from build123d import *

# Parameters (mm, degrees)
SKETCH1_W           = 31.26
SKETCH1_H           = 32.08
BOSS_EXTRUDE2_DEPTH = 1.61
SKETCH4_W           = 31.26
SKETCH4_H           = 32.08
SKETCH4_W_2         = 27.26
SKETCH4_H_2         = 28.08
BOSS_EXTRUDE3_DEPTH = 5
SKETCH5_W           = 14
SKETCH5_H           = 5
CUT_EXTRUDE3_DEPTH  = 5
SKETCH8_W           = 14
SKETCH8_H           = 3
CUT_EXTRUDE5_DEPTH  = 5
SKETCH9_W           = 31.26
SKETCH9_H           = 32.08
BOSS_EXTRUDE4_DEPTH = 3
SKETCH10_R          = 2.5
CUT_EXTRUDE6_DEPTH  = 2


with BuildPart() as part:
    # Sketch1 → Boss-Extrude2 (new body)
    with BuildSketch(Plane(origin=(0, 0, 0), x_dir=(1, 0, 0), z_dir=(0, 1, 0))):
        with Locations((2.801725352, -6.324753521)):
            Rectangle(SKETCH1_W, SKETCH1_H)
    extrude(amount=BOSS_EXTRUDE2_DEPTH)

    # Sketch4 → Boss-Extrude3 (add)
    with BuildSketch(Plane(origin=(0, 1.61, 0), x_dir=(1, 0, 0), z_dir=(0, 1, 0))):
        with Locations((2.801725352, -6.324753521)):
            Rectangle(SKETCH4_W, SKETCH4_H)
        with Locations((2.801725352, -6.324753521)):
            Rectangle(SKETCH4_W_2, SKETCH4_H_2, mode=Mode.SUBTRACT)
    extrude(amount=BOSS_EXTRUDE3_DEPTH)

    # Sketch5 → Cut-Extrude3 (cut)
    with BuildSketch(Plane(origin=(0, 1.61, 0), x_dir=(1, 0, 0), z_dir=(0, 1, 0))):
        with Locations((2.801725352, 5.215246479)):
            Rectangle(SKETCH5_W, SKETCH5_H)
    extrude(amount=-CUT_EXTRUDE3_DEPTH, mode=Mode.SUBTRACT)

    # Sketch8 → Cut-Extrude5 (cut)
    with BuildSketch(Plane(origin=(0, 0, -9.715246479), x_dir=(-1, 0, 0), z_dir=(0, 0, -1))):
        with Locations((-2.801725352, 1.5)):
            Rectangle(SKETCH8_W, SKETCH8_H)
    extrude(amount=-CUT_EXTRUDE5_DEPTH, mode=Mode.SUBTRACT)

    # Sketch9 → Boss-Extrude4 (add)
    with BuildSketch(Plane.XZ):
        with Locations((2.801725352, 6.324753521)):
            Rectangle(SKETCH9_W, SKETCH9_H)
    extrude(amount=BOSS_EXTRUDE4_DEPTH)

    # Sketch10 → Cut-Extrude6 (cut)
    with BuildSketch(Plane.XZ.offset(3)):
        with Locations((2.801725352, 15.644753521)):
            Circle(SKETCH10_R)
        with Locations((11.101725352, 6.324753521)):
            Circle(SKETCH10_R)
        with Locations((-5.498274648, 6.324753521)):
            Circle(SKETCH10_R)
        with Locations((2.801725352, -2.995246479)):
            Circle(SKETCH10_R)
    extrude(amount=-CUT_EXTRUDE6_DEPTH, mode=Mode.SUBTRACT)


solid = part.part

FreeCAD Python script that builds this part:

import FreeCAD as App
import Part
import Sketcher
from FreeCAD import Vector

doc = App.newDocument("Part")
body = doc.addObject("PartDesign::Body", "Body")

sketch1 = body.newObject("Sketcher::SketchObject", "Sketch")
sketch1.AttachmentSupport = (doc.getObject("XZ_Plane"), [""])
sketch1.MapMode = "FlatFace"
sketch1.addGeometry([
    Part.LineSegment(Vector(-13, -10, 0), Vector(-13, 22, 0)),
    Part.LineSegment(Vector(-13, 22, 0), Vector(18, 22, 0)),
    Part.LineSegment(Vector(18, 22, 0), Vector(18, -10, 0)),
    Part.LineSegment(Vector(18, -10, 0), Vector(-13, -10, 0)),
], False)
sketch1.addConstraint([
    Sketcher.Constraint("Coincident", 0, 2, 1, 1),
    Sketcher.Constraint("Coincident", 1, 2, 2, 1),
    Sketcher.Constraint("Coincident", 2, 2, 3, 1),
    Sketcher.Constraint("Coincident", 3, 2, 0, 1),
    Sketcher.Constraint("Vertical", 0),
    Sketcher.Constraint("Horizontal", 1),
    Sketcher.Constraint("Vertical", 2),
    Sketcher.Constraint("Horizontal", 3),
    Sketcher.Constraint("DistanceX", 1, 1, 1, 2, 31.26),
    Sketcher.Constraint("DistanceY", 0, 1, 0, 2, 32.08),
    Sketcher.Constraint("DistanceX", 0, 2, -1, 1, 12.828275),
    Sketcher.Constraint("DistanceY", -1, 1, 0, 2, 22.364754),
])
pad1 = body.newObject("PartDesign::Pad", "Pad")
pad1.Profile = sketch1
pad1.Length = 1.61
pad1.Reversed = True

sketch2 = body.newObject("Sketcher::SketchObject", "Sketch001")
sketch2.AttachmentSupport = (doc.getObject("XZ_Plane"), [""])
sketch2.MapMode = "FlatFace"
sketch2.AttachmentOffset = App.Placement(Vector(0, 0, -1.61), App.Rotation())
sketch2.addGeometry([
    Part.LineSegment(Vector(-13, -10, 0), Vector(-13, 22, 0)),
    Part.LineSegment(Vector(-13, 22, 0), Vector(18, 22, 0)),
    Part.LineSegment(Vector(18, 22, 0), Vector(18, -10, 0)),
    Part.LineSegment(Vector(18, -10, 0), Vector(-13, -10, 0)),
    Part.LineSegment(Vector(16, 20, 0), Vector(-11, 20, 0)),
    Part.LineSegment(Vector(-11, 20, 0), Vector(-11, -8, 0)),
    Part.LineSegment(Vector(-11, -8, 0), Vector(16, -8, 0)),
    Part.LineSegment(Vector(16, -8, 0), Vector(16, 20, 0)),
], False)
sketch2.addConstraint([
    Sketcher.Constraint("Coincident", 0, 2, 1, 1),
    Sketcher.Constraint("Coincident", 1, 2, 2, 1),
    Sketcher.Constraint("Coincident", 2, 2, 3, 1),
    Sketcher.Constraint("Coincident", 3, 2, 0, 1),
    Sketcher.Constraint("Coincident", 4, 2, 5, 1),
    Sketcher.Constraint("Coincident", 5, 2, 6, 1),
    Sketcher.Constraint("Coincident", 6, 2, 7, 1),
    Sketcher.Constraint("Coincident", 7, 2, 4, 1),
    Sketcher.Constraint("Vertical", 0),
    Sketcher.Constraint("Horizontal", 1),
    Sketcher.Constraint("Vertical", 2),
    Sketcher.Constraint("Horizontal", 3),
    Sketcher.Constraint("Horizontal", 4),
    Sketcher.Constraint("Vertical", 5),
    Sketcher.Constraint("Horizontal", 6),
    Sketcher.Constraint("Vertical", 7),
    Sketcher.Constraint("DistanceX", 0, 2, 4, 2, 2.0),
    Sketcher.Constraint("DistanceY", 4, 2, 0, 2, 2.0),
    Sketcher.Constraint("DistanceY", 3, 2, 5, 2, 2.0),
    Sketcher.Constraint("DistanceX", 6, 2, 2, 2, 2.0),
    Sketcher.Constraint("DistanceX", 1, 1, 1, 2, 31.26),
    Sketcher.Constraint("DistanceY", 0, 1, 0, 2, 32.08),
    Sketcher.Constraint("DistanceX", 0, 2, -1, 1, 12.828275),
    Sketcher.Constraint("DistanceY", -1, 1, 0, 2, 22.364754),
])
pad2 = body.newObject("PartDesign::Pad", "Pad001")
pad2.Profile = sketch2
pad2.Length = 5
pad2.Reversed = True

sketch3 = body.newObject("Sketcher::SketchObject", "Sketch002")
sketch3.AttachmentSupport = (doc.getObject("XZ_Plane"), [""])
sketch3.MapMode = "FlatFace"
sketch3.AttachmentOffset = App.Placement(Vector(0, 0, -1.61), App.Rotation())
sketch3.addGeometry([
    Part.LineSegment(Vector(-4, -8, 0), Vector(-4, -3, 0)),
    Part.LineSegment(Vector(-4, -3, 0), Vector(10, -3, 0)),
    Part.LineSegment(Vector(10, -3, 0), Vector(10, -8, 0)),
    Part.LineSegment(Vector(10, -8, 0), Vector(-4, -8, 0)),
], False)
sketch3.addConstraint([
    Sketcher.Constraint("Coincident", 0, 2, 1, 1),
    Sketcher.Constraint("Coincident", 1, 2, 2, 1),
    Sketcher.Constraint("Coincident", 2, 2, 3, 1),
    Sketcher.Constraint("Coincident", 3, 2, 0, 1),
    Sketcher.Constraint("Vertical", 0),
    Sketcher.Constraint("Horizontal", 1),
    Sketcher.Constraint("Vertical", 2),
    Sketcher.Constraint("Horizontal", 3),
    Sketcher.Constraint("DistanceX", 1, 1, 1, 2, 14.0),
    Sketcher.Constraint("DistanceY", 0, 1, 0, 2, 5.0),
    Sketcher.Constraint("DistanceX", 0, 2, -1, 1, 4.198275),
    Sketcher.Constraint("DistanceY", 0, 2, -1, 1, 2.715246),
])
pocket1 = body.newObject("PartDesign::Pocket", "Pocket")
pocket1.Profile = sketch3
pocket1.Length = 5
pocket1.Reversed = True

sketch4 = body.newObject("Sketcher::SketchObject", "Sketch003")
sketch4.AttachmentSupport = (doc.getObject("XY_Plane"), [""])
sketch4.MapMode = "FlatFace"
sketch4.AttachmentOffset = App.Placement(Vector(0, 0, -9.715246), App.Rotation())
sketch4.addGeometry([
    Part.LineSegment(Vector(9.8, 3, 0), Vector(9.8, 0, 0)),
    Part.LineSegment(Vector(9.8, 0, 0), Vector(-4.2, 0, 0)),
    Part.LineSegment(Vector(-4.2, 0, 0), Vector(-4.2, 3, 0)),
    Part.LineSegment(Vector(-4.2, 3, 0), Vector(9.8, 3, 0)),
], False)
sketch4.addConstraint([
    Sketcher.Constraint("Coincident", 0, 2, 1, 1),
    Sketcher.Constraint("Coincident", 1, 2, 2, 1),
    Sketcher.Constraint("Coincident", 2, 2, 3, 1),
    Sketcher.Constraint("Coincident", 3, 2, 0, 1),
    Sketcher.Constraint("Vertical", 0),
    Sketcher.Constraint("Horizontal", 1),
    Sketcher.Constraint("Vertical", 2),
    Sketcher.Constraint("Horizontal", 3),
    Sketcher.Constraint("PointOnObject", 0, 2, -1),
    Sketcher.Constraint("DistanceX", 1, 2, 1, 1, 14.0),
    Sketcher.Constraint("DistanceY", 0, 2, 0, 1, 3.0),
    Sketcher.Constraint("DistanceX", -1, 1, 0, 2, 9.801725),
])
pocket2 = body.newObject("PartDesign::Pocket", "Pocket001")
pocket2.Profile = sketch4
pocket2.Length = 5
pocket2.Reversed = True

sketch5 = body.newObject("Sketcher::SketchObject", "Sketch004")
sketch5.AttachmentSupport = (doc.getObject("XZ_Plane"), [""])
sketch5.MapMode = "FlatFace"
sketch5.addGeometry([
    Part.LineSegment(Vector(-13, 22, 0), Vector(-13, -10, 0)),
    Part.LineSegment(Vector(-13, -10, 0), Vector(18, -10, 0)),
    Part.LineSegment(Vector(18, -10, 0), Vector(18, 22, 0)),
    Part.LineSegment(Vector(18, 22, 0), Vector(-13, 22, 0)),
], False)
sketch5.addConstraint([
    Sketcher.Constraint("Coincident", 0, 2, 1, 1),
    Sketcher.Constraint("Coincident", 1, 2, 2, 1),
    Sketcher.Constraint("Coincident", 2, 2, 3, 1),
    Sketcher.Constraint("Coincident", 3, 2, 0, 1),
    Sketcher.Constraint("Vertical", 0),
    Sketcher.Constraint("Horizontal", 1),
    Sketcher.Constraint("Vertical", 2),
    Sketcher.Constraint("Horizontal", 3),
    Sketcher.Constraint("DistanceX", 1, 1, 1, 2, 31.26),
    Sketcher.Constraint("DistanceY", 0, 2, 0, 1, 32.08),
    Sketcher.Constraint("DistanceX", 0, 2, -1, 1, 12.828275),
    Sketcher.Constraint("DistanceY", 0, 2, -1, 1, 9.715246),
])
pad3 = body.newObject("PartDesign::Pad", "Pad002")
pad3.Profile = sketch5
pad3.Length = 3

sketch6 = body.newObject("Sketcher::SketchObject", "Sketch005")
sketch6.AttachmentSupport = (doc.getObject("XZ_Plane"), [""])
sketch6.MapMode = "FlatFace"
sketch6.AttachmentOffset = App.Placement(Vector(0, 0, 3), App.Rotation())
sketch6.addGeometry([
    Part.Circle(Vector(2.8, 15.6, 0), Vector(0, 0, 1), 2.5),
    Part.Circle(Vector(11.1, 6.3, 0), Vector(0, 0, 1), 2.5),
    Part.Circle(Vector(-5.5, 6.3, 0), Vector(0, 0, 1), 2.5),
    Part.Circle(Vector(2.8, -3, 0), Vector(0, 0, 1), 2.5),
], False)
sketch6.addConstraint([
    Sketcher.Constraint("Equal", 0, 1),
    Sketcher.Constraint("Equal", 1, 2),
    Sketcher.Constraint("Equal", 2, 3),
    Sketcher.Constraint("Horizontal", 1, 3, 2, 3),
    Sketcher.Constraint("Vertical", 0, 3, 3, 3),
    Sketcher.Constraint("Diameter", 0, 5.0),
    Sketcher.Constraint("DistanceX", 0, 3, 1, 3, 8.3),
    Sketcher.Constraint("DistanceX", 2, 3, 0, 3, 8.3),
    Sketcher.Constraint("DistanceY", 1, 3, 0, 3, 9.32),
    Sketcher.Constraint("DistanceY", 3, 3, 1, 3, 9.32),
    Sketcher.Constraint("DistanceX", -1, 1, 0, 3, 2.801725),
    Sketcher.Constraint("DistanceY", -1, 1, 0, 3, 15.644754),
])
pocket3 = body.newObject("PartDesign::Pocket", "Pocket002")
pocket3.Profile = sketch6
pocket3.Length = 2

doc.recompute()
